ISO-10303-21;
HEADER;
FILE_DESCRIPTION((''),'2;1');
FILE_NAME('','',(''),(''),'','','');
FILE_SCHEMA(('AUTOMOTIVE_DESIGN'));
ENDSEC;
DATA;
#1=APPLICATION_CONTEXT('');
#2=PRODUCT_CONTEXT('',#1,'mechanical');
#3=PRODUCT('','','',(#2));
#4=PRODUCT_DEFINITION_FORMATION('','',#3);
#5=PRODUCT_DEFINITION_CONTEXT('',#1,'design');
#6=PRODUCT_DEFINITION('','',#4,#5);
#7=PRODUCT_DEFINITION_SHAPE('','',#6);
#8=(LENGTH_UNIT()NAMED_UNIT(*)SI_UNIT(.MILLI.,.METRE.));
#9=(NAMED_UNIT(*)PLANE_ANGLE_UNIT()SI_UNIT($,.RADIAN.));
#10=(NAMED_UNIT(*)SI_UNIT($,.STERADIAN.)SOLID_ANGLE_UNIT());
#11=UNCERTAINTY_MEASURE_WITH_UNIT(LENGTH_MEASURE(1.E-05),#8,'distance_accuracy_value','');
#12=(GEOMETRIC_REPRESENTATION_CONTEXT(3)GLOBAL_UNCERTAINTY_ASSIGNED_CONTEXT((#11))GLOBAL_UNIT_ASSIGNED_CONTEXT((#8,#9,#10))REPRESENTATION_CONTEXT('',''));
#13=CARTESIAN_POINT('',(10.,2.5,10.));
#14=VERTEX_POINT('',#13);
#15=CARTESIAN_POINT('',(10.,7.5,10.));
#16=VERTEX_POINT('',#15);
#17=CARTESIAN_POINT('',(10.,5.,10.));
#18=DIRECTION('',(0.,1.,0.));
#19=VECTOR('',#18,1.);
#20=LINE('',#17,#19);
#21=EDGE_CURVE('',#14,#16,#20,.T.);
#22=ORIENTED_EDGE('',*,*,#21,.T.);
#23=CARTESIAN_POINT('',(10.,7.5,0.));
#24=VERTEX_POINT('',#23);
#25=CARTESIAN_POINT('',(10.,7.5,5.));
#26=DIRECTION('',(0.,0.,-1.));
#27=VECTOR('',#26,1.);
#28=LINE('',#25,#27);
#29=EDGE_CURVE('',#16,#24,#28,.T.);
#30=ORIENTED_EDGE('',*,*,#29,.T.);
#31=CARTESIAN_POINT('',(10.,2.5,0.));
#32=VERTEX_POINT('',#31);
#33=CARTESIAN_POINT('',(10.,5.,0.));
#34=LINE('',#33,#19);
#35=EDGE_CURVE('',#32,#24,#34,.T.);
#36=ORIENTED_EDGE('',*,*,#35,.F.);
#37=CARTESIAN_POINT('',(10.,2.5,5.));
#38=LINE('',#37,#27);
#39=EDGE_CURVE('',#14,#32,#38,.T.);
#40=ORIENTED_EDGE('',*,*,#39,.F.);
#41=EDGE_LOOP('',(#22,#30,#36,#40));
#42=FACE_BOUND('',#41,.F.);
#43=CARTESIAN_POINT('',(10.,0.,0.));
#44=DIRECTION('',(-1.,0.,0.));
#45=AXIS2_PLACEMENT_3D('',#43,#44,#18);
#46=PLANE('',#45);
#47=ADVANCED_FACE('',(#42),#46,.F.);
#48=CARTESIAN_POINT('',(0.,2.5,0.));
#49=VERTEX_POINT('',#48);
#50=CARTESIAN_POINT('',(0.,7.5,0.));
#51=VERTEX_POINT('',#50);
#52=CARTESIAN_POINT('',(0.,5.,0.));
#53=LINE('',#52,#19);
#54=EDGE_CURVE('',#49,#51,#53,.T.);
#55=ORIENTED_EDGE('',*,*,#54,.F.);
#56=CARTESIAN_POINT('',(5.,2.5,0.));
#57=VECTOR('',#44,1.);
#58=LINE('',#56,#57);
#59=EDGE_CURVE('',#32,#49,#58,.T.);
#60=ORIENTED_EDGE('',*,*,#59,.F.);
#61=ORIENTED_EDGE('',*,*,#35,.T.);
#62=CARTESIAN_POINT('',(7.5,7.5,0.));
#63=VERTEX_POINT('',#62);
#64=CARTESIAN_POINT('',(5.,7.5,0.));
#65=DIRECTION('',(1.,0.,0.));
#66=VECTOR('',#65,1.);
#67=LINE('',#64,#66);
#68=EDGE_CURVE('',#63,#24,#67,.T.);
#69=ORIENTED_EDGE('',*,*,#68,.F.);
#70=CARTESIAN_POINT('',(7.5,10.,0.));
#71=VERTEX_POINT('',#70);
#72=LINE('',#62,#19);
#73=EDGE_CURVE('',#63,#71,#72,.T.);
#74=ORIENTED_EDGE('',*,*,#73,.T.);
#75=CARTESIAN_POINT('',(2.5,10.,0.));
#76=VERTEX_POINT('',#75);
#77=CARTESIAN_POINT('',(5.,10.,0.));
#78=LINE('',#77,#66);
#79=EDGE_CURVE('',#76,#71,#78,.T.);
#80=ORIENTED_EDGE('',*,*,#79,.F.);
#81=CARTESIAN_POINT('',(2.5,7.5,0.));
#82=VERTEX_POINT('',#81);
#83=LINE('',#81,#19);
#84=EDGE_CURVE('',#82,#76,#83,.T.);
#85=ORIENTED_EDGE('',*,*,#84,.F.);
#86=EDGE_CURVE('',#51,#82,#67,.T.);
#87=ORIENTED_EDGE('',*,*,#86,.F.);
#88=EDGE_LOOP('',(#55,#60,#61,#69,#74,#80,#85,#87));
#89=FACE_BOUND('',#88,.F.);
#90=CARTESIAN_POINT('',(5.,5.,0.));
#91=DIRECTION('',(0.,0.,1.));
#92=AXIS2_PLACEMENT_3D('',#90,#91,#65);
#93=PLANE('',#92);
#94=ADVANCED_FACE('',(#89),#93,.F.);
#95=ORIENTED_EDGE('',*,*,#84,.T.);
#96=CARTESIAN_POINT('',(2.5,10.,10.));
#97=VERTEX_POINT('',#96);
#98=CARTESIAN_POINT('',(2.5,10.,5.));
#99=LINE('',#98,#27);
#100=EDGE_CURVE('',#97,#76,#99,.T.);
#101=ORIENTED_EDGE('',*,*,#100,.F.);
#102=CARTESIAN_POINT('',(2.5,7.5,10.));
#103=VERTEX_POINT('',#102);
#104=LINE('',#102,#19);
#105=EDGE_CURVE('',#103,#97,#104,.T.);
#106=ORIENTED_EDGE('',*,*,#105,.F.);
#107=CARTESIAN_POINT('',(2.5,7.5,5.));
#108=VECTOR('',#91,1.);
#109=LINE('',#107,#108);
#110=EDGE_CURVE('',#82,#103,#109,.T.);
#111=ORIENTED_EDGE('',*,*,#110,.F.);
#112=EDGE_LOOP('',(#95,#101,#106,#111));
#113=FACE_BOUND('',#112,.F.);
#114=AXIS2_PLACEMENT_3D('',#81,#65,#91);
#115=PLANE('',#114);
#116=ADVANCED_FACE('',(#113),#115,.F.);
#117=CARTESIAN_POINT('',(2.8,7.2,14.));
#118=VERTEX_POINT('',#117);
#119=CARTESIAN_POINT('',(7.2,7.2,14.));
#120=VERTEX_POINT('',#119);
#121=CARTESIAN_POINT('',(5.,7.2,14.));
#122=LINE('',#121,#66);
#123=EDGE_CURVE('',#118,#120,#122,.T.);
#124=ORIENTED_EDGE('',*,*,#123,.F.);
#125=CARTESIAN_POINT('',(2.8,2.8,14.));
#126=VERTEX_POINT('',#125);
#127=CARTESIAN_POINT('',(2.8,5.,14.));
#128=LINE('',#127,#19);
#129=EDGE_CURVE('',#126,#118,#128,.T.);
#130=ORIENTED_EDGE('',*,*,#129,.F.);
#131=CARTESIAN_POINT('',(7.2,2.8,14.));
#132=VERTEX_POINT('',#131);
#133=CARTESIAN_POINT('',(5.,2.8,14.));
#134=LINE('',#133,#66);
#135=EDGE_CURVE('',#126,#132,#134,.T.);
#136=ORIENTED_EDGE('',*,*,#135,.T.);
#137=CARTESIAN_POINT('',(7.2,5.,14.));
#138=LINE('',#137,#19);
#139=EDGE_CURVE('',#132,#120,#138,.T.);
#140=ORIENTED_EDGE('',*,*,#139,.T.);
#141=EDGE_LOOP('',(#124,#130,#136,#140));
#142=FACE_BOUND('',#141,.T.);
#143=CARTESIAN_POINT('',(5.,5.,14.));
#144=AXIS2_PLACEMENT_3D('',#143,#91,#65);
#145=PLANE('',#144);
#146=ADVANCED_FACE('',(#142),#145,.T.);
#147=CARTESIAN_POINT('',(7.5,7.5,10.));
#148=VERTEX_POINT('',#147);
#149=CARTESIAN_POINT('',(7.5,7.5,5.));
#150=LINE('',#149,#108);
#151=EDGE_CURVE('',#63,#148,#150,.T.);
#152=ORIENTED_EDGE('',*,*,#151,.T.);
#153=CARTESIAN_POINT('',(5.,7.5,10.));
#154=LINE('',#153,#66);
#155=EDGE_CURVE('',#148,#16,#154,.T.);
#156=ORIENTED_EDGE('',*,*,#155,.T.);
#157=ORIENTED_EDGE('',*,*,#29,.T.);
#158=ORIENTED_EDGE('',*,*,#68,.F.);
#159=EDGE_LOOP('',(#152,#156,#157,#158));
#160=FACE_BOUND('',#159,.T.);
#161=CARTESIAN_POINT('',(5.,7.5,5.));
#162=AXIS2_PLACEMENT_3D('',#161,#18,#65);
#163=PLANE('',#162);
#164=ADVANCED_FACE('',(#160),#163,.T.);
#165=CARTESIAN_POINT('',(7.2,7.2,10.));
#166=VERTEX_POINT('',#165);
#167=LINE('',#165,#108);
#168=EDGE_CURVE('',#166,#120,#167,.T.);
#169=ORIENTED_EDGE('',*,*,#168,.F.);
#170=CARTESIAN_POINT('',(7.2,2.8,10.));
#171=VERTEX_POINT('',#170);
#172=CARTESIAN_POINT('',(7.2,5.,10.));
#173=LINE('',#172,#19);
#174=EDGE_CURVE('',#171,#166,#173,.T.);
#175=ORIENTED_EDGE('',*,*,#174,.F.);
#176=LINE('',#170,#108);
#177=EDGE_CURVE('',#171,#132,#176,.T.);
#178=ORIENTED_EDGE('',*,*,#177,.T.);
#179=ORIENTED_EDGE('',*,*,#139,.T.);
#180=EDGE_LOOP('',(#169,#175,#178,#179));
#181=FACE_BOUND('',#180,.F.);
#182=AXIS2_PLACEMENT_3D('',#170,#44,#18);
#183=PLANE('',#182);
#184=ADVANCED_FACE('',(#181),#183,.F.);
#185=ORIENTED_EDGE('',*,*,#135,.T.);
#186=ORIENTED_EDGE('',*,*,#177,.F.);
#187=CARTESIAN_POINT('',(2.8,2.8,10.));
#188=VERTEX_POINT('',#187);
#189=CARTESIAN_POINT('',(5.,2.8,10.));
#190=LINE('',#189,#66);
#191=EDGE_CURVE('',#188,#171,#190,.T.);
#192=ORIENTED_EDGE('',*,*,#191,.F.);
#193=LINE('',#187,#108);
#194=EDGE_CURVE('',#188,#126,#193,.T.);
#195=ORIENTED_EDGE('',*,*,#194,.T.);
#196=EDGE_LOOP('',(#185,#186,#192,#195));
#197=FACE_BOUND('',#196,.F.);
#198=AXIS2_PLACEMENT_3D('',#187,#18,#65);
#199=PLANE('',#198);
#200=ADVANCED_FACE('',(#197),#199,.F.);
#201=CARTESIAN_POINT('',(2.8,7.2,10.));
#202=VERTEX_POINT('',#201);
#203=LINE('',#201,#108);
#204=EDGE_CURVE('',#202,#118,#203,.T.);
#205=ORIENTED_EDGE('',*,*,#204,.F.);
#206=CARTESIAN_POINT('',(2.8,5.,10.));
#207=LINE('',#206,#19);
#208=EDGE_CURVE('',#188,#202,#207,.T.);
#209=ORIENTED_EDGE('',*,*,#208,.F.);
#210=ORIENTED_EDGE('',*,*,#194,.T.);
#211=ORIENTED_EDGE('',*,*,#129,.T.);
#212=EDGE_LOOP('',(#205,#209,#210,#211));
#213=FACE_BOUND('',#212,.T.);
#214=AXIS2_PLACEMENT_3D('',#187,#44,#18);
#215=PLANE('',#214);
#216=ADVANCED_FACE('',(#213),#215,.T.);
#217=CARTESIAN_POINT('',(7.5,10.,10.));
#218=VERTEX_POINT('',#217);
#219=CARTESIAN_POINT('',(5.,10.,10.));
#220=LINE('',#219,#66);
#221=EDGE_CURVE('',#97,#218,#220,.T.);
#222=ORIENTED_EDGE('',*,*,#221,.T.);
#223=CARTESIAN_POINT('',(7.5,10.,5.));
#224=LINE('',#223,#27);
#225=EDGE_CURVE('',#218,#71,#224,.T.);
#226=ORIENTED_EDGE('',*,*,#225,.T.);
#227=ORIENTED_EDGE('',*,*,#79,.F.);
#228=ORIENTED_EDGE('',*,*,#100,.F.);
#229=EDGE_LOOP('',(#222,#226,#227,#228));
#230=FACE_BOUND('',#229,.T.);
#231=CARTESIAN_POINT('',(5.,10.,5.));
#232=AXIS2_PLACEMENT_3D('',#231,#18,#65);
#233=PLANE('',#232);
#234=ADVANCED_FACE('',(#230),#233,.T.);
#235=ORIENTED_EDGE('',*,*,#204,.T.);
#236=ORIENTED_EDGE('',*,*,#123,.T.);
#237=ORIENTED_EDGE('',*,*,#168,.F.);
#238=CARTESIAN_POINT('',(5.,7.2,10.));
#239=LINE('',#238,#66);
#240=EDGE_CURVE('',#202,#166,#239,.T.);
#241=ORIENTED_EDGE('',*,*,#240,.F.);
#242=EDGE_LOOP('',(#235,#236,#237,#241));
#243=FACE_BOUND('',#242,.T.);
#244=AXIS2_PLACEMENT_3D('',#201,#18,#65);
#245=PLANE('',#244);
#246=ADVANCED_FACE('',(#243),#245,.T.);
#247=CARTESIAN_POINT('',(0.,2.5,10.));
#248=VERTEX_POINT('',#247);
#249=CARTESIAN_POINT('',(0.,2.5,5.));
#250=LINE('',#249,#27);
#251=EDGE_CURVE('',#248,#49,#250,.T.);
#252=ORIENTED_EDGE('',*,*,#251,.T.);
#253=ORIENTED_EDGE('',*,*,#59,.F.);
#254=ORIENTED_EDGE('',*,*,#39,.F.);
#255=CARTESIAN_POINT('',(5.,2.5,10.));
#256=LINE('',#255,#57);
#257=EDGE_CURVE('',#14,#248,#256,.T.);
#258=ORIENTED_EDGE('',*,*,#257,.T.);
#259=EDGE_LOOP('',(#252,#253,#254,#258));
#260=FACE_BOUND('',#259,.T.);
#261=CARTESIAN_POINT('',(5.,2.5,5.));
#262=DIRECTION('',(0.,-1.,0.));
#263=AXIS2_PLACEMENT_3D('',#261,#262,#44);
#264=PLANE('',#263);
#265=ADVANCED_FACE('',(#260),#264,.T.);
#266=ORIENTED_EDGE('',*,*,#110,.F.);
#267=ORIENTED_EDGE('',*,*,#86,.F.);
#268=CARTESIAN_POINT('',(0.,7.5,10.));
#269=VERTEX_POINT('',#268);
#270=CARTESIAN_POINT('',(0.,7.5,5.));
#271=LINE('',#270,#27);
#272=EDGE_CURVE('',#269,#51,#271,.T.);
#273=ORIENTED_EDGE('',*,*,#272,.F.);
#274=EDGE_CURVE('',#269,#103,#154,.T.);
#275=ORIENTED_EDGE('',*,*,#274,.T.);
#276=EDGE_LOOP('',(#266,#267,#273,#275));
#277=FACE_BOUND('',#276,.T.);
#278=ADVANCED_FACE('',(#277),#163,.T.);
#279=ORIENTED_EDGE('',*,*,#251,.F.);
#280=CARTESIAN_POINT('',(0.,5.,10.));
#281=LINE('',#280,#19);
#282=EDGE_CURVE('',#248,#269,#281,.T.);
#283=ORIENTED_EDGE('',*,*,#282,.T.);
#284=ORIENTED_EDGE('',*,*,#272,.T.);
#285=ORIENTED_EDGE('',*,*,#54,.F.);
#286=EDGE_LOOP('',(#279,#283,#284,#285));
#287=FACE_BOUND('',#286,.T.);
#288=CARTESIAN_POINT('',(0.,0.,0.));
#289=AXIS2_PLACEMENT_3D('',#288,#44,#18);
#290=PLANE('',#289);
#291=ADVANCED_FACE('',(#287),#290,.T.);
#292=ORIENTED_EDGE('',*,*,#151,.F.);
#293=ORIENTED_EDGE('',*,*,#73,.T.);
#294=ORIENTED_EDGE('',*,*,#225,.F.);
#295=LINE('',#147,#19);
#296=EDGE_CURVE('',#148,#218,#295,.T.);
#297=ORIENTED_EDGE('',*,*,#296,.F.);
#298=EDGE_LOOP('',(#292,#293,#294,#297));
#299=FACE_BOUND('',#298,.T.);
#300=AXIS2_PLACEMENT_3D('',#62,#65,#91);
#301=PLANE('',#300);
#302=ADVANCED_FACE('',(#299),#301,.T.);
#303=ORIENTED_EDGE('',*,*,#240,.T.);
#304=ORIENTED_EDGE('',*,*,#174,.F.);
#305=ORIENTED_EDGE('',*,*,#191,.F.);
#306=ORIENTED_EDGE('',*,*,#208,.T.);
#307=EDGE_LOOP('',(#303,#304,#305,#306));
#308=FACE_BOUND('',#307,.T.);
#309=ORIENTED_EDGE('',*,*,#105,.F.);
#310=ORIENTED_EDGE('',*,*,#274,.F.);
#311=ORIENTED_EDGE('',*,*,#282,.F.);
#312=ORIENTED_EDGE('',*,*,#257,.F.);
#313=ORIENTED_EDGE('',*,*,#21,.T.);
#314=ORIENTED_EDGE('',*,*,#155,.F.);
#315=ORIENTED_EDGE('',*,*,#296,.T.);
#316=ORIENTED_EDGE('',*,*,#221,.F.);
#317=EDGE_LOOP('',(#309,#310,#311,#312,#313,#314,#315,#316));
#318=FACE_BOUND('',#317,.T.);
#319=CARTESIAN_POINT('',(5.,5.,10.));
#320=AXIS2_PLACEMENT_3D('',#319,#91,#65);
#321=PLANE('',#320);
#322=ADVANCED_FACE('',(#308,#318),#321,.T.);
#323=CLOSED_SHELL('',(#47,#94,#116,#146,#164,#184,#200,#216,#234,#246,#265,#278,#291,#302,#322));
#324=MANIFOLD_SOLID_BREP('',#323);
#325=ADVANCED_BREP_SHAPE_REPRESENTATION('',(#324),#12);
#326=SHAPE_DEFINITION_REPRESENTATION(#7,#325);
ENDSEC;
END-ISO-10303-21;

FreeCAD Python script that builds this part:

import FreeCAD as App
import Part
import Sketcher

doc = App.newDocument("Part")
body = doc.addObject("PartDesign::Body", "Body")

# Sketch on XY plane
sketch1 = doc.addObject("Sketcher::SketchObject", "Sketch")
body.addObject(sketch1)
sketch1.AttachmentSupport = (doc.XY_Plane, [""])
sketch1.MapMode = "FlatFace"
sketch1.addGeometry([
    Part.LineSegment(App.Vector(0, 10, 0), App.Vector(0, 0, 0)),
    Part.LineSegment(App.Vector(0, 0, 0), App.Vector(10, 0, 0)),
    Part.LineSegment(App.Vector(10, 0, 0), App.Vector(10, 10, 0)),
    Part.LineSegment(App.Vector(10, 10, 0), App.Vector(0, 10, 0)),
], False)
sketch1.addConstraint([
    Sketcher.Constraint("Coincident", 0, 2, 1, 1),
    Sketcher.Constraint("Coincident", 1, 2, 2, 1),
    Sketcher.Constraint("Coincident", 2, 2, 3, 1),
    Sketcher.Constraint("Coincident", 3, 2, 0, 1),
    Sketcher.Constraint("Vertical", 0),
    Sketcher.Constraint("Horizontal", 1),
    Sketcher.Constraint("Vertical", 2),
    Sketcher.Constraint("Horizontal", 3),
    Sketcher.Constraint("Coincident", 0, 2, -1, 1),
    Sketcher.Constraint("Equal", 3, 0),
    Sketcher.Constraint("DistanceX", 1, 1, 1, 2, 10.0),
])
pad1 = doc.addObject("PartDesign::Pad", "Pad")
body.addObject(pad1)
pad1.Profile = sketch1
pad1.Length = 10

# Sketch on XY plane
sketch2 = doc.addObject("Sketcher::SketchObject", "Sketch001")
body.addObject(sketch2)
sketch2.AttachmentSupport = (doc.XY_Plane, [""])
sketch2.MapMode = "FlatFace"
sketch2.AttachmentOffset = App.Placement(App.Vector(0, 0, 10), App.Rotation())
sketch2.addGeometry([
    Part.LineSegment(App.Vector(2.8, 7.2, 0), App.Vector(2.8, 2.8, 0)),
    Part.LineSegment(App.Vector(2.8, 2.8, 0), App.Vector(7.2, 2.8, 0)),
    Part.LineSegment(App.Vector(7.2, 2.8, 0), App.Vector(7.2, 7.2, 0)),
    Part.LineSegment(App.Vector(7.2, 7.2, 0), App.Vector(2.8, 7.2, 0)),
], False)
sketch2.addConstraint([
    Sketcher.Constraint("Coincident", 0, 2, 1, 1),
    Sketcher.Constraint("Coincident", 1, 2, 2, 1),
    Sketcher.Constraint("Coincident", 2, 2, 3, 1),
    Sketcher.Constraint("Coincident", 3, 2, 0, 1),
    Sketcher.Constraint("Vertical", 0),
    Sketcher.Constraint("Horizontal", 1),
    Sketcher.Constraint("Vertical", 2),
    Sketcher.Constraint("Horizontal", 3),
    Sketcher.Constraint("Equal", 3, 0),
    Sketcher.Constraint("DistanceX", 1, 1, 1, 2, 4.4),
    Sketcher.Constraint("DistanceX", -1, 1, 0, 2, 2.8),
    Sketcher.Constraint("DistanceY", -1, 1, 0, 2, 2.8),
])
pad2 = doc.addObject("PartDesign::Pad", "Pad001")
body.addObject(pad2)
pad2.Profile = sketch2
pad2.Length = 4

# Sketch on XZ plane
sketch3 = doc.addObject("Sketcher::SketchObject", "Sketch002")
body.addObject(sketch3)
sketch3.AttachmentSupport = (doc.XZ_Plane, [""])
sketch3.MapMode = "FlatFace"
sketch3.AttachmentOffset = App.Placement(App.Vector(0, 0, -10), App.Rotation())
sketch3.addGeometry([
    Part.LineSegment(App.Vector(0, 0, 0), App.Vector(0, 10, 0)),
    Part.LineSegment(App.Vector(0, 10, 0), App.Vector(10, 10, 0)),
    Part.LineSegment(App.Vector(10, 10, 0), App.Vector(10, 0, 0)),
    Part.LineSegment(App.Vector(10, 0, 0), App.Vector(0, 0, 0)),
], False)
sketch3.addConstraint([
    Sketcher.Constraint("Coincident", 0, 2, 1, 1),
    Sketcher.Constraint("Coincident", 1, 2, 2, 1),
    Sketcher.Constraint("Coincident", 2, 2, 3, 1),
    Sketcher.Constraint("Coincident", 3, 2, 0, 1),
    Sketcher.Constraint("Vertical", 0),
    Sketcher.Constraint("Horizontal", 1),
    Sketcher.Constraint("Vertical", 2),
    Sketcher.Constraint("Horizontal", 3),
    Sketcher.Constraint("Coincident", 3, 2, -1, 1),
    Sketcher.Constraint("Equal", 3, 0),
    Sketcher.Constraint("DistanceX", 1, 1, 1, 2, 10.0),
])
pocket1 = doc.addObject("PartDesign::Pocket", "Pocket")
body.addObject(pocket1)
pocket1.Profile = sketch3
pocket1.Length = 2.5
pocket1.Reversed = True

# Sketch on XZ plane
sketch4 = doc.addObject("Sketcher::SketchObject", "Sketch003")
body.addObject(sketch4)
sketch4.AttachmentSupport = (doc.XZ_Plane, [""])
sketch4.MapMode = "FlatFace"
sketch4.addGeometry([
    Part.LineSegment(App.Vector(10, 0, 0), App.Vector(10, 10, 0)),
    Part.LineSegment(App.Vector(10, 10, 0), App.Vector(0, 10, 0)),
    Part.LineSegment(App.Vector(0, 10, 0), App.Vector(0, 0, 0)),
    Part.LineSegment(App.Vector(0, 0, 0), App.Vector(10, 0, 0)),
], False)
sketch4.addConstraint([
    Sketcher.Constraint("Coincident", 0, 2, 1, 1),
    Sketcher.Constraint("Coincident", 1, 2, 2, 1),
    Sketcher.Constraint("Coincident", 2, 2, 3, 1),
    Sketcher.Constraint("Coincident", 3, 2, 0, 1),
    Sketcher.Constraint("Vertical", 0),
    Sketcher.Constraint("Horizontal", 1),
    Sketcher.Constraint("Vertical", 2),
    Sketcher.Constraint("Horizontal", 3),
    Sketcher.Constraint("Coincident", 2, 2, -1, 1),
    Sketcher.Constraint("Equal", 3, 0),
    Sketcher.Constraint("DistanceX", 1, 2, 1, 1, 10.0),
])
pocket2 = doc.addObject("PartDesign::Pocket", "Pocket001")
body.addObject(pocket2)
pocket2.Profile = sketch4
pocket2.Length = 2.5

# Sketch on XZ plane
sketch5 = doc.addObject("Sketcher::SketchObject", "Sketch004")
body.addObject(sketch5)
sketch5.AttachmentSupport = (doc.XZ_Plane, [""])
sketch5.MapMode = "FlatFace"
sketch5.AttachmentOffset = App.Placement(App.Vector(0, 0, -7.5), App.Rotation())
sketch5.addGeometry([
    Part.LineSegment(App.Vector(8, 10, 0), App.Vector(8, 0, 0)),
    Part.LineSegment(App.Vector(8, 0, 0), App.Vector(2, 0, 0)),
    Part.LineSegment(App.Vector(2, 0, 0), App.Vector(2, 10, 0)),
    Part.LineSegment(App.Vector(2, 10, 0), App.Vector(8, 10, 0)),
], False)
sketch5.addConstraint([
    Sketcher.Constraint("Coincident", 0, 2, 1, 1),
    Sketcher.Constraint("Coincident", 1, 2, 2, 1),
    Sketcher.Constraint("Coincident", 2, 2, 3, 1),
    Sketcher.Constraint("Coincident", 3, 2, 0, 1),
    Sketcher.Constraint("Vertical", 0),
    Sketcher.Constraint("Horizontal", 1),
    Sketcher.Constraint("Vertical", 2),
    Sketcher.Constraint("Horizontal", 3),
    Sketcher.Constraint("PointOnObject", 0, 2, -1),
    Sketcher.Constraint("DistanceX", 1, 2, 1, 1, 5.0),
    Sketcher.Constraint("DistanceY", 0, 2, 0, 1, 10.0),
    Sketcher.Constraint("DistanceX", -1, 1, 0, 2, 7.5),
])
pad3 = doc.addObject("PartDesign::Pad", "Pad002")
body.addObject(pad3)
pad3.Profile = sketch5
pad3.Length = 10
pad3.Reversed = True

# Sketch on XY plane
sketch6 = doc.addObject("Sketcher::SketchObject", "Sketch005")
body.addObject(sketch6)
sketch6.AttachmentSupport = (doc.XY_Plane, [""])
sketch6.MapMode = "FlatFace"
sketch6.AttachmentOffset = App.Placement(App.Vector(0, 0, 10), App.Rotation())
sketch6.addGeometry([
    Part.LineSegment(App.Vector(2.8, 14.7, 0), App.Vector(2.8, 10.3, 0)),
    Part.LineSegment(App.Vector(2.8, 10.3, 0), App.Vector(7.2, 10.3, 0)),
    Part.LineSegment(App.Vector(7.2, 10.3, 0), App.Vector(7.2, 14.7, 0)),
    Part.LineSegment(App.Vector(7.2, 14.7, 0), App.Vector(2.8, 14.7, 0)),
], False)
sketch6.addConstraint([
    Sketcher.Constraint("Coincident", 0, 2, 1, 1),
    Sketcher.Constraint("Coincident", 1, 2, 2, 1),
    Sketcher.Constraint("Coincident", 2, 2, 3, 1),
    Sketcher.Constraint("Coincident", 3, 2, 0, 1),
    Sketcher.Constraint("Vertical", 0),
    Sketcher.Constraint("Horizontal", 1),
    Sketcher.Constraint("Vertical", 2),
    Sketcher.Constraint("Horizontal", 3),
    Sketcher.Constraint("Equal", 3, 0),
    Sketcher.Constraint("DistanceX", 1, 1, 1, 2, 4.4),
    Sketcher.Constraint("DistanceX", -1, 1, 0, 2, 2.8),
    Sketcher.Constraint("DistanceY", -1, 1, 0, 2, 10.3),
])
pad4 = doc.addObject("PartDesign::Pad", "Pad003")
body.addObject(pad4)
pad4.Profile = sketch6
pad4.Length = 4

# Sketch on XY plane
sketch7 = doc.addObject("Sketcher::SketchObject", "Sketch006")
body.addObject(sketch7)
sketch7.AttachmentSupport = (doc.XY_Plane, [""])
sketch7.MapMode = "FlatFace"
sketch7.AttachmentOffset = App.Placement(App.Vector(0, 0, 14), App.Rotation())
sketch7.addGeometry([
    Part.LineSegment(App.Vector(2.8, 10.3, 0), App.Vector(7.2, 10.3, 0)),
    Part.LineSegment(App.Vector(7.2, 10.3, 0), App.Vector(7.2, 14.7, 0)),
    Part.LineSegment(App.Vector(7.2, 14.7, 0), App.Vector(2.8, 14.7, 0)),
    Part.LineSegment(App.Vector(2.8, 14.7, 0), App.Vector(2.8, 10.3, 0)),
], False)
sketch7.addConstraint([
    Sketcher.Constraint("Coincident", 0, 2, 1, 1),
    Sketcher.Constraint("Coincident", 1, 2, 2, 1),
    Sketcher.Constraint("Coincident", 2, 2, 3, 1),
    Sketcher.Constraint("Coincident", 3, 2, 0, 1),
    Sketcher.Constraint("Horizontal", 0),
    Sketcher.Constraint("Vertical", 1),
    Sketcher.Constraint("Horizontal", 2),
    Sketcher.Constraint("Vertical", 3),
    Sketcher.Constraint("Equal", 2, 1),
    Sketcher.Constraint("DistanceX", 0, 1, 0, 2, 4.4),
    Sketcher.Constraint("DistanceX", -1, 1, 0, 2, 7.2),
    Sketcher.Constraint("DistanceY", -1, 1, 0, 2, 10.3),
])
pocket3 = doc.addObject("PartDesign::Pocket", "Pocket002")
body.addObject(pocket3)
pocket3.Profile = sketch7
pocket3.Length = 5

# Sketch on XZ plane
sketch8 = doc.addObject("Sketcher::SketchObject", "Sketch007")
body.addObject(sketch8)
sketch8.AttachmentSupport = (doc.XZ_Plane, [""])
sketch8.MapMode = "FlatFace"
sketch8.AttachmentOffset = App.Placement(App.Vector(0, 0, -17.5), App.Rotation())
sketch8.addGeometry([
    Part.LineSegment(App.Vector(2, 0, 0), App.Vector(2, 10, 0)),
    Part.LineSegment(App.Vector(2, 10, 0), App.Vector(8, 10, 0)),
    Part.LineSegment(App.Vector(8, 10, 0), App.Vector(8, 0, 0)),
    Part.LineSegment(App.Vector(8, 0, 0), App.Vector(2, 0, 0)),
], False)
sketch8.addConstraint([
    Sketcher.Constraint("Coincident", 0, 2, 1, 1),
    Sketcher.Constraint("Coincident", 1, 2, 2, 1),
    Sketcher.Constraint("Coincident", 2, 2, 3, 1),
    Sketcher.Constraint("Coincident", 3, 2, 0, 1),
    Sketcher.Constraint("Vertical", 0),
    Sketcher.Constraint("Horizontal", 1),
    Sketcher.Constraint("Vertical", 2),
    Sketcher.Constraint("Horizontal", 3),
    Sketcher.Constraint("PointOnObject", 2, 2, -1),
    Sketcher.Constraint("DistanceX", 1, 1, 1, 2, 5.0),
    Sketcher.Constraint("DistanceY", 0, 1, 0, 2, 10.0),
    Sketcher.Constraint("DistanceX", -1, 1, 0, 2, 2.5),
])
pocket4 = doc.addObject("PartDesign::Pocket", "Pocket003")
body.addObject(pocket4)
pocket4.Profile = sketch8
pocket4.Length = 7.5
pocket4.Reversed = True

doc.recompute()
